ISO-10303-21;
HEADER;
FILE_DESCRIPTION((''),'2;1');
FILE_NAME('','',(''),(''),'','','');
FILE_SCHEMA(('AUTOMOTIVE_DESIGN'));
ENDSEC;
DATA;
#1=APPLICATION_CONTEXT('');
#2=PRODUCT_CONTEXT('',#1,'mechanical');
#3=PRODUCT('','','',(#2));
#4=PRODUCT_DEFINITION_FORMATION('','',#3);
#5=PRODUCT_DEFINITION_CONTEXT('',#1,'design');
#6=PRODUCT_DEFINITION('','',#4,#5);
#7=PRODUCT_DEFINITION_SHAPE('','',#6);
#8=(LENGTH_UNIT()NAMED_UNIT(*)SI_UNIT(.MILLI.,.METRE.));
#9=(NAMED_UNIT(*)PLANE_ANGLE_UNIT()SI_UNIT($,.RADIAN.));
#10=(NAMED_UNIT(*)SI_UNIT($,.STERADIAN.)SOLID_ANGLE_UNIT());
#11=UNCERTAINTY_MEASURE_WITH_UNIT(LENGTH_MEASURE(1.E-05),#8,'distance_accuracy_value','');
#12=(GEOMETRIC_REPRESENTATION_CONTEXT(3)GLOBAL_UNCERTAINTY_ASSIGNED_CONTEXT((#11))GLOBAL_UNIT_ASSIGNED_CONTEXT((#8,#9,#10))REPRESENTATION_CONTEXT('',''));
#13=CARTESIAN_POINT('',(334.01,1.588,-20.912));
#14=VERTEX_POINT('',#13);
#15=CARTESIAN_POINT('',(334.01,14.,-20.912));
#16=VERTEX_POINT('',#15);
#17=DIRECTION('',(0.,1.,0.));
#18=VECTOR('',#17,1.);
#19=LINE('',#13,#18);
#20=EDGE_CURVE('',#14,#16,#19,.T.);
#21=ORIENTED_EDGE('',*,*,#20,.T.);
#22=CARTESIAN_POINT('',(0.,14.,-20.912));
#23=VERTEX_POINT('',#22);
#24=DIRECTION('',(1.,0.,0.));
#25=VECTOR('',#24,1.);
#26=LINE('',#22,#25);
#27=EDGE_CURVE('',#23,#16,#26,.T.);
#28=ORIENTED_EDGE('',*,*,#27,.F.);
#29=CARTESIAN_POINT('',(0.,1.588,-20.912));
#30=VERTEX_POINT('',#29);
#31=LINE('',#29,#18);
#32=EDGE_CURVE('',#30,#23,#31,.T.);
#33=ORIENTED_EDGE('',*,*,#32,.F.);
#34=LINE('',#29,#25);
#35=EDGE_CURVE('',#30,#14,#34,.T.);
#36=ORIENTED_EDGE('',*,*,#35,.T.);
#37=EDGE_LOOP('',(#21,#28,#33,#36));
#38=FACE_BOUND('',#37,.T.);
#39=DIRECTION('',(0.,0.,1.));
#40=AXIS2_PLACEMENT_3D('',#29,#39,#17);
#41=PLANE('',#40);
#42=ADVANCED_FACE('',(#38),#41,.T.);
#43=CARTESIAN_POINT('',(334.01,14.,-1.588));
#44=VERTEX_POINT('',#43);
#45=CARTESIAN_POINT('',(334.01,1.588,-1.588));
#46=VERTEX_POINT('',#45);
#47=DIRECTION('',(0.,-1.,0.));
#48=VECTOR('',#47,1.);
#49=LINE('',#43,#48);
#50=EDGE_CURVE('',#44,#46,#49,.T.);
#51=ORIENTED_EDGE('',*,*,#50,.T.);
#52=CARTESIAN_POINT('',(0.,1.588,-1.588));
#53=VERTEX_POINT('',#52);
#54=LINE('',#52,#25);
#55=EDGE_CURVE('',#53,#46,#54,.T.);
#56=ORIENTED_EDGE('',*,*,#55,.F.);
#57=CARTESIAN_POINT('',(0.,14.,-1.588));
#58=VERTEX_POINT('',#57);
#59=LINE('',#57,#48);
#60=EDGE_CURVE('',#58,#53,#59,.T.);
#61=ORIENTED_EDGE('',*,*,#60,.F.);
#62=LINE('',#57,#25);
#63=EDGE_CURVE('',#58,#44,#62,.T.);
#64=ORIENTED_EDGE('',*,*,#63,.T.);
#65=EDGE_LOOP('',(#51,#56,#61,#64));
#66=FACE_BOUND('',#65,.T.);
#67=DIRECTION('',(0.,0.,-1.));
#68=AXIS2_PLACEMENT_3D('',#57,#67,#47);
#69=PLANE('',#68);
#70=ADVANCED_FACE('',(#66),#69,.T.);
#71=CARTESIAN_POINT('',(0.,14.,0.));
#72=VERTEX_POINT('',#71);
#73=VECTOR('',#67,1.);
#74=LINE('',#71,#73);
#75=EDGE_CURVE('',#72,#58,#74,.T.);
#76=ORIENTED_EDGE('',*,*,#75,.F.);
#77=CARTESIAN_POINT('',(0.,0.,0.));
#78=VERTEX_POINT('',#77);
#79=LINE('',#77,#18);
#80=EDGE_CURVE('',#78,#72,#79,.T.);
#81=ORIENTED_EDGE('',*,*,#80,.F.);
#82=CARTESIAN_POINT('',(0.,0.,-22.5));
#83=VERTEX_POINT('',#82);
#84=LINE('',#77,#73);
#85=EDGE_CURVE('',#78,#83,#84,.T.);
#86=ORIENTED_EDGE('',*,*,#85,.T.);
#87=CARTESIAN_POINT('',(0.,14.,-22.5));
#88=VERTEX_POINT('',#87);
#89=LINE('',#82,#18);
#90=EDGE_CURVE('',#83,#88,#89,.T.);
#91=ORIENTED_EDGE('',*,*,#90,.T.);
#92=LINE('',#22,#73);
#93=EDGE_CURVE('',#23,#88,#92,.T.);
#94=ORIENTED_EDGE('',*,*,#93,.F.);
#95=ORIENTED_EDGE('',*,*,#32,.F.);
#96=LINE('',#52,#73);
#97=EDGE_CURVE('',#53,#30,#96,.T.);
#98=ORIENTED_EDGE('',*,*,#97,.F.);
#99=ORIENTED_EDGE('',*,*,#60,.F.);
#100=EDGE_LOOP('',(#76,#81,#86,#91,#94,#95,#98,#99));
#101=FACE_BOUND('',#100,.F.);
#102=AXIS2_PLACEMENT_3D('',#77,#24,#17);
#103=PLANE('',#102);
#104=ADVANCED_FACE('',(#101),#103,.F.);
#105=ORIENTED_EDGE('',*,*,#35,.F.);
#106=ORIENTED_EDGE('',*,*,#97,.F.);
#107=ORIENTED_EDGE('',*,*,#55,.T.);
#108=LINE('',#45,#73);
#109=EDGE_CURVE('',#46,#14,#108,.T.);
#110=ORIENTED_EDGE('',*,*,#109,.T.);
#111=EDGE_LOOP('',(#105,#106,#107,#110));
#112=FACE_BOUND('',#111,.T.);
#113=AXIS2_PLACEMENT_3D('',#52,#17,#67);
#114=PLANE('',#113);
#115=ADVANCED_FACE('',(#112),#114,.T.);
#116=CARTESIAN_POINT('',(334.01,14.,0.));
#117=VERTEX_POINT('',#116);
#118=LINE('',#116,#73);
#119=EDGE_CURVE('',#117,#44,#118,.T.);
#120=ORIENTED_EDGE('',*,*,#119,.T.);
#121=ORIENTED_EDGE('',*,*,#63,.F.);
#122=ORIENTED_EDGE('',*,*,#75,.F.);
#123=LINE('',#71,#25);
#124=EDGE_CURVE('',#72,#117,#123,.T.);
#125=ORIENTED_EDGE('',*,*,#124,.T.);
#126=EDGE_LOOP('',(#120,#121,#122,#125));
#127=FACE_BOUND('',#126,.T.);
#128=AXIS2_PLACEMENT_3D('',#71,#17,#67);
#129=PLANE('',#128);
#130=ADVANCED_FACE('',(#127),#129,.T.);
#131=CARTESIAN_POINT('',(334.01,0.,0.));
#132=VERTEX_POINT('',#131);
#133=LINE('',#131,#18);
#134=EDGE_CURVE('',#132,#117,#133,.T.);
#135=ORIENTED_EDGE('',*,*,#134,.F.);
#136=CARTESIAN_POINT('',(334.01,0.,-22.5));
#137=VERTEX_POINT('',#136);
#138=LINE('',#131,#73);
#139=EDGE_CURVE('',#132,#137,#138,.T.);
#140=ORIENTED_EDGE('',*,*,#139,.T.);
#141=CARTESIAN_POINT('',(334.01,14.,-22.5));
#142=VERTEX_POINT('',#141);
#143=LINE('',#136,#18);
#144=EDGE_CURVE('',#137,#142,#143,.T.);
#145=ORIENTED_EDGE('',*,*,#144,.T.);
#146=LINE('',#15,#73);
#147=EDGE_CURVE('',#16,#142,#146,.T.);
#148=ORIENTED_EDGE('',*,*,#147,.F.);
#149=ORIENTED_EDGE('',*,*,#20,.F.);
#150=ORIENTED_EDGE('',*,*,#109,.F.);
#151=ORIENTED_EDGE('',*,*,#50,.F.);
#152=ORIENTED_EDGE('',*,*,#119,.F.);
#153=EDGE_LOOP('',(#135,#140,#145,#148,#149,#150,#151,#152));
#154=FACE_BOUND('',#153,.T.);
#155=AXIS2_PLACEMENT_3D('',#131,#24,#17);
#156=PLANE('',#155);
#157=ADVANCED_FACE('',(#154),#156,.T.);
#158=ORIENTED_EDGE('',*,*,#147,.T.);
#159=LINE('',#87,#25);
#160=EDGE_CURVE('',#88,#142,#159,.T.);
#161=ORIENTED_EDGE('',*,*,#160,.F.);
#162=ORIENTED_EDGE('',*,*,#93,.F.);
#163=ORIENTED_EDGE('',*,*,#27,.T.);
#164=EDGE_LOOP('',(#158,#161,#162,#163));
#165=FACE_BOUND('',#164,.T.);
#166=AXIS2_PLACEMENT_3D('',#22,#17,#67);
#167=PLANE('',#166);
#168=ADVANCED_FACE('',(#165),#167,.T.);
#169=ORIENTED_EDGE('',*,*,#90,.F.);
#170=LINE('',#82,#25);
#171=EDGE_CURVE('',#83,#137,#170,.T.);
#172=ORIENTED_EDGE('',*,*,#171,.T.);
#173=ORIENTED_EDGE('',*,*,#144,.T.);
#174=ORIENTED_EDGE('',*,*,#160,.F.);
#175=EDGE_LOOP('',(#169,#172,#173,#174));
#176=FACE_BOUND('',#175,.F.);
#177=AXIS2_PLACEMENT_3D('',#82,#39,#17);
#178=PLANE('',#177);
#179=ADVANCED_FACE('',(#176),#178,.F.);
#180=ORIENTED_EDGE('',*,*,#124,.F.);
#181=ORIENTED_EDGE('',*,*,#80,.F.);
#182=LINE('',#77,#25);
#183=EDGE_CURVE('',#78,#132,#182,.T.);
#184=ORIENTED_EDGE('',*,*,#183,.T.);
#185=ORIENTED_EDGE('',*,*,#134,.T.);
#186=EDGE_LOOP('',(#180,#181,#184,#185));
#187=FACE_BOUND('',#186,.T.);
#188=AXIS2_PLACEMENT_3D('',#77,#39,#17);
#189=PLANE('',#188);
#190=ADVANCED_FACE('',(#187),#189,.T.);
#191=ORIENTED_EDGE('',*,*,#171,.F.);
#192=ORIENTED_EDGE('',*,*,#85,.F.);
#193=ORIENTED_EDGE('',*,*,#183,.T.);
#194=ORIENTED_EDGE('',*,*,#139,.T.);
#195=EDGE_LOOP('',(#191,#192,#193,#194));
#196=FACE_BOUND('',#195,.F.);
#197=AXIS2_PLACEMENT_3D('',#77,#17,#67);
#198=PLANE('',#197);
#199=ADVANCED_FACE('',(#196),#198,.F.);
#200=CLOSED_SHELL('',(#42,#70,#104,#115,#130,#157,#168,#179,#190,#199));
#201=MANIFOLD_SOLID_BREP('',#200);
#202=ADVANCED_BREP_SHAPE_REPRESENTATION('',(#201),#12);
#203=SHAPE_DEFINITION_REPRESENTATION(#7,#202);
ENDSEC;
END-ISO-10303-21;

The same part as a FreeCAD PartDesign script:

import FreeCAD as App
import Part
import Sketcher
from FreeCAD import Vector
Q = App.Units.Quantity


def add_polygon(sketch, points):
    """Adds a closed chain of lines whose ends are joined by coincident constraints."""
    first, n = sketch.GeometryCount, len(points)
    for a, b in zip(points, points[1:] + points[:1]):
        sketch.addGeometry(Part.LineSegment(App.Vector(*a, 0), App.Vector(*b, 0)), False)
    for i in range(n):
        sketch.addConstraint(Sketcher.Constraint("Coincident", first + i, 2, first + (i + 1) % n, 1))

doc = App.newDocument("Part")
body = doc.addObject("PartDesign::Body", "Body")

# Sketch on YZ plane
sketch1 = body.newObject("Sketcher::SketchObject", "Sketch")
sketch1.AttachmentSupport = (doc.getObject("YZ_Plane"), [""])
sketch1.MapMode = "FlatFace"
add_polygon(sketch1, [(14, 0), (0, 0), (0, -22.5), (14, -22.5), (14, -20.9), (1.6, -20.9), (1.6, -1.6), (14, -1.6)])  # lines 0-7
sketch1.addConstraint(Sketcher.Constraint("Horizontal", 0))
sketch1.addConstraint(Sketcher.Constraint("Vertical", 1))
sketch1.addConstraint(Sketcher.Constraint("Horizontal", 2))
sketch1.addConstraint(Sketcher.Constraint("Vertical", 3))
sketch1.addConstraint(Sketcher.Constraint("Horizontal", 4))
sketch1.addConstraint(Sketcher.Constraint("Vertical", 5))
sketch1.addConstraint(Sketcher.Constraint("Horizontal", 6))
sketch1.addConstraint(Sketcher.Constraint("Vertical", 7))
sketch1.addConstraint(Sketcher.Constraint("Coincident", 0, 2, -1, 1))
sketch1.addConstraint(Sketcher.Constraint("Vertical", 3, 2, 6, 2))
sketch1.addConstraint(Sketcher.Constraint("Equal", 3, 7))
sketch1.addConstraint(Sketcher.Constraint("DistanceX", 0, 2, 0, 1, Q("14 mm")))
sketch1.addConstraint(Sketcher.Constraint("DistanceY", 1, 2, 1, 1, Q("22.5 mm")))
sketch1.addConstraint(Sketcher.Constraint("DistanceX", 4, 2, 4, 1, Q("12.412 mm")))
sketch1.addConstraint(Sketcher.Constraint("DistanceY", 3, 1, 3, 2, Q("1.588 mm")))
pad1 = body.newObject("PartDesign::Pad", "Pad")
pad1.Profile = sketch1
pad1.Length = 334.01

doc.recompute()
